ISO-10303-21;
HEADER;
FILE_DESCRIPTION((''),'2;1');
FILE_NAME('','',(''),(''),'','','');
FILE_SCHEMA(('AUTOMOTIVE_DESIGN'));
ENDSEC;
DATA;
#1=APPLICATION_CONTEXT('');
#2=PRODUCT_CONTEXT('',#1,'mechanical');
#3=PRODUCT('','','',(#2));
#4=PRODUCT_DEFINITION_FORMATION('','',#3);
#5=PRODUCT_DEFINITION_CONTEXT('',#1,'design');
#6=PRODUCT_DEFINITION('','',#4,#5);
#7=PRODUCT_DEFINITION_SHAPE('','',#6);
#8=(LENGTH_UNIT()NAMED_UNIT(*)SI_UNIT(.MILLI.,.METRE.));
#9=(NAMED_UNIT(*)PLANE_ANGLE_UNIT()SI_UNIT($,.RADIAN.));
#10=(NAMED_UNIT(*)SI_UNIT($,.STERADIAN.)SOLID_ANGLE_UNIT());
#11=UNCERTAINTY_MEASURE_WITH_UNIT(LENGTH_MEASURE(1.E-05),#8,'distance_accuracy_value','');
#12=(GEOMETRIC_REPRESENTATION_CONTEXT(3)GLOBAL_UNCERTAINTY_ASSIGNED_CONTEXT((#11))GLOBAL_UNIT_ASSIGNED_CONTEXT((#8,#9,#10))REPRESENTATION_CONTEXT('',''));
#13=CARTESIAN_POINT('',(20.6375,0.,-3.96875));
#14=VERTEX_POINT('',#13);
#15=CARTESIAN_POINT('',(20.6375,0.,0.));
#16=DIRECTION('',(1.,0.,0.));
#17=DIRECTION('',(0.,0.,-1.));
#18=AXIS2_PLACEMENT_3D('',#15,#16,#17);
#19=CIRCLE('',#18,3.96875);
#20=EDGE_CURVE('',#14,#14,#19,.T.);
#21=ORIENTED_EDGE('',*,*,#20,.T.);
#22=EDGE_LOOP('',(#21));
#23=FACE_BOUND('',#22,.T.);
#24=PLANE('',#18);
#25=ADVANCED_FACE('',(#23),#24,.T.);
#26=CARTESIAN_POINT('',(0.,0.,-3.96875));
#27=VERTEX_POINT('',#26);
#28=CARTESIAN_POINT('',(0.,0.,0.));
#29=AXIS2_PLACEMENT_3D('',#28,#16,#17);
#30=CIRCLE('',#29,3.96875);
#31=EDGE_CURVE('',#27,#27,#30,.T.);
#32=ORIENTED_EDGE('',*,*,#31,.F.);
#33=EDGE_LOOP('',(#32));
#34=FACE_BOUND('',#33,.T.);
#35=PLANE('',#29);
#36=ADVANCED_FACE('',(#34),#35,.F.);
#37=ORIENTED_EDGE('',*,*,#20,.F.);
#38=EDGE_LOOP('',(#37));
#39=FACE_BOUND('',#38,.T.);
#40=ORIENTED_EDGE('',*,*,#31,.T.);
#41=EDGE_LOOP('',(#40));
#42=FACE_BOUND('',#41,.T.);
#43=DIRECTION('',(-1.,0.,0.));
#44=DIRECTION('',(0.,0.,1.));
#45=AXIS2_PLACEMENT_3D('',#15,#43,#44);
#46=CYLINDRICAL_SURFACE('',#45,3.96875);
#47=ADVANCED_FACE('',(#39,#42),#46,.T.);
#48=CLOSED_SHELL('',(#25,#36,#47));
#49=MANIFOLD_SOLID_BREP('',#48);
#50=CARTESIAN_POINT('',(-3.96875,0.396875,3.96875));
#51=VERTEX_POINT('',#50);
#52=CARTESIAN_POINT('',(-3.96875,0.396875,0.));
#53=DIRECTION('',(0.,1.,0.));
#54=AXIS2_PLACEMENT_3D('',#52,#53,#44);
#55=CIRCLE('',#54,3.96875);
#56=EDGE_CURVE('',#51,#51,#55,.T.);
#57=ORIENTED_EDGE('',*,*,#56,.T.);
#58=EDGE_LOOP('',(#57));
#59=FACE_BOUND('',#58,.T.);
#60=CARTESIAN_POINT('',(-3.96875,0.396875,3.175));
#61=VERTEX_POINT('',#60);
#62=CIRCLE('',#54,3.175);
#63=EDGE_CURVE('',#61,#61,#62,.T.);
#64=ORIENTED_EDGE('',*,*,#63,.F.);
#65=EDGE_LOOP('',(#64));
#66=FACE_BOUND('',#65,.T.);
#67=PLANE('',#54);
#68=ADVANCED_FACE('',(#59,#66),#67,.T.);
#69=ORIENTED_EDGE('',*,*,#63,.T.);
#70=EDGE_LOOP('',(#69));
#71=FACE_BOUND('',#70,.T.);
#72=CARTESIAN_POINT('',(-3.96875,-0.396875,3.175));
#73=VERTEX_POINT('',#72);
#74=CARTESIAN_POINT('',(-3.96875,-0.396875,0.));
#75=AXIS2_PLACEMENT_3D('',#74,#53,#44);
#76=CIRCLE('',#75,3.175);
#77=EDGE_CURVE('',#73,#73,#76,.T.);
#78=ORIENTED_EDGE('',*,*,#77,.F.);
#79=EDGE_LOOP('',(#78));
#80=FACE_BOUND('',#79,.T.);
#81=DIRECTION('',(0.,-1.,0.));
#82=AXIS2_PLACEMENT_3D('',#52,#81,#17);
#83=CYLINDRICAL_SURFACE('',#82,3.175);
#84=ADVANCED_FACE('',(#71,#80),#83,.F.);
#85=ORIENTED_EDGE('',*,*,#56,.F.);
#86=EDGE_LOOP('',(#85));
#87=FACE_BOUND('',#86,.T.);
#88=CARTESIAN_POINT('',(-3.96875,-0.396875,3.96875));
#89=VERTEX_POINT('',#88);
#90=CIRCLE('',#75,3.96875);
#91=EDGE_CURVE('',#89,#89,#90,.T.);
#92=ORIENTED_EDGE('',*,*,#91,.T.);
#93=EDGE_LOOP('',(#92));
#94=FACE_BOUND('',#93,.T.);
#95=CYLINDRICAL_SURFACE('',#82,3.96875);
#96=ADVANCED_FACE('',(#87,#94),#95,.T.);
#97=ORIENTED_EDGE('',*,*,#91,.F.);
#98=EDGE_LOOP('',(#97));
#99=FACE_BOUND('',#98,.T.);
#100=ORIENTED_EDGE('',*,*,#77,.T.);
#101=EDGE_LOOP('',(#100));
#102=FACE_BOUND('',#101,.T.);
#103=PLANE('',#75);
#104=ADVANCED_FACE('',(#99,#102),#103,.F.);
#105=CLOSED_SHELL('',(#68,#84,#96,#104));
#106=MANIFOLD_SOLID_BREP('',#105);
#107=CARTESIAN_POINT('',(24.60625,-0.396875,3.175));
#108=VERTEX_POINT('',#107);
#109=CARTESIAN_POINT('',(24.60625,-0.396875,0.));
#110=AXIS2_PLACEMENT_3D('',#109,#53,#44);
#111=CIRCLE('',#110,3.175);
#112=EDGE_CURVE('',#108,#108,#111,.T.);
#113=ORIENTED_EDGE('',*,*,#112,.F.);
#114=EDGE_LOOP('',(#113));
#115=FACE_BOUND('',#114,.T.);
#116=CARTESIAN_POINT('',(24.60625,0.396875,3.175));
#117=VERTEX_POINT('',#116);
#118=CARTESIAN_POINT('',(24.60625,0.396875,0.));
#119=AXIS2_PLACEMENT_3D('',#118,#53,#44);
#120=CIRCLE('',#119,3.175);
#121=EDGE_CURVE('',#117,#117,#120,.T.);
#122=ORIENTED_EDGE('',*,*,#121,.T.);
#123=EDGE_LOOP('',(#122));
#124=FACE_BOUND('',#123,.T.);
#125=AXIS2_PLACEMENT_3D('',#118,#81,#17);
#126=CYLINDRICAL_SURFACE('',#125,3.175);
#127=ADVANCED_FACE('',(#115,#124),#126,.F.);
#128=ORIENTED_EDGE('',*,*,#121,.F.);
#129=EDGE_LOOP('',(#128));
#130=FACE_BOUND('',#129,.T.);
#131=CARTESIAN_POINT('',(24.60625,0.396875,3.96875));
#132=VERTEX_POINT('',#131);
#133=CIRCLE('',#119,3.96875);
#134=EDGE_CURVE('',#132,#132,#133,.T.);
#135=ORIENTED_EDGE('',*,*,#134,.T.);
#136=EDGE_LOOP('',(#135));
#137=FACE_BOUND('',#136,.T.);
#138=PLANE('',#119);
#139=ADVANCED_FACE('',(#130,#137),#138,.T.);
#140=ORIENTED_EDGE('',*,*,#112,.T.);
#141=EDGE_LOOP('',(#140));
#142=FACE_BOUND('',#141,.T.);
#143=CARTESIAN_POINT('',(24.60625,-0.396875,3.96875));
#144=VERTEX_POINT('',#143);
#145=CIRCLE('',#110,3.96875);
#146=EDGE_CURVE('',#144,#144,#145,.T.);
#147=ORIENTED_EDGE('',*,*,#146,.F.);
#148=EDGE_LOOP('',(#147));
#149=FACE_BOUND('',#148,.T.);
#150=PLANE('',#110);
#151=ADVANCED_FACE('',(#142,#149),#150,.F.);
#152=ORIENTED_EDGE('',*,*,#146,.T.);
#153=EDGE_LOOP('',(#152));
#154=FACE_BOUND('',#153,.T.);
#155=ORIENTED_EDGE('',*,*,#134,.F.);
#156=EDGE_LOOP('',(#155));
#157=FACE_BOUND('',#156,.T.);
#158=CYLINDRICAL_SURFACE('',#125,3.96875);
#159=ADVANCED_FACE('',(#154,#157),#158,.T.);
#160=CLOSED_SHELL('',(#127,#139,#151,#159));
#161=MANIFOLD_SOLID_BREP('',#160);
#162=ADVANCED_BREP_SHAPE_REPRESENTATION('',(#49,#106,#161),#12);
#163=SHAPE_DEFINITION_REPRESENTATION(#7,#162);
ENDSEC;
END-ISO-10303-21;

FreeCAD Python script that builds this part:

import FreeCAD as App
import Part
import Sketcher
from FreeCAD import Vector
Q = App.Units.Quantity

doc = App.newDocument("Part")
body = doc.addObject("PartDesign::Body", "Body")

# Sketch on YZ plane
sketch1 = doc.addObject("Sketcher::SketchObject", "Sketch")
body.addObject(sketch1)
sketch1.AttachmentSupport = (doc.YZ_Plane, [""])
sketch1.MapMode = "FlatFace"
sketch1.addGeometry(Part.Circle(Vector(0, 0, 0), Vector(0, 0, 1), 4), False)
sketch1.addConstraint([
    Sketcher.Constraint("Coincident", 0, 3, -1, 1),
    Sketcher.Constraint("Diameter", 0, Q("0.3125 in")),
])
pad1 = doc.addObject("PartDesign::Pad", "Pad")
body.addObject(pad1)
pad1.Profile = sketch1
pad1.Length = Q("0.8125 in")
body2 = doc.addObject("PartDesign::Body", "Body001")

# Sketch on XZ plane
sketch2 = doc.addObject("Sketcher::SketchObject", "Sketch001")
body2.addObject(sketch2)
sketch2.AttachmentSupport = (doc.getObject("XZ_Plane001"), [""])
sketch2.MapMode = "FlatFace"
sketch2.addGeometry([
    Part.Circle(Vector(-4, 0, 0), Vector(0, 0, 1), 4),
    Part.Circle(Vector(-4, 0, 0), Vector(0, 0, 1), 3.2),
], False)
sketch2.addConstraint([
    Sketcher.Constraint("Coincident", 1, 3, 0, 3),
    Sketcher.Constraint("PointOnObject", 0, 3, -1),
    Sketcher.Constraint("Diameter", 1, Q("0.25 in")),
    Sketcher.Constraint("Diameter", 0, Q("0.3125 in")),
    Sketcher.Constraint("DistanceX", 0, 3, -1, 1, Q("0.15625 in")),
])
pad2 = doc.addObject("PartDesign::Pad", "Pad001")
body2.addObject(pad2)
pad2.Profile = sketch2
pad2.Length = Q("0.03125 in")
pad2.Midplane = True
body3 = doc.addObject("PartDesign::Body", "Body002")

# Sketch on XZ plane
sketch3 = doc.addObject("Sketcher::SketchObject", "Sketch002")
body3.addObject(sketch3)
sketch3.AttachmentSupport = (doc.getObject("XZ_Plane002"), [""])
sketch3.MapMode = "FlatFace"
sketch3.addGeometry([
    Part.Circle(Vector(24.6, 0, 0), Vector(0, 0, 1), 4),
    Part.Circle(Vector(24.6, 0, 0), Vector(0, 0, 1), 3.2),
], False)
sketch3.addConstraint([
    Sketcher.Constraint("Coincident", 1, 3, 0, 3),
    Sketcher.Constraint("PointOnObject", 0, 3, -1),
    Sketcher.Constraint("Diameter", 1, Q("0.25 in")),
    Sketcher.Constraint("Diameter", 0, Q("0.3125 in")),
    Sketcher.Constraint("DistanceX", -1, 1, 0, 3, Q("0.96875 in")),
])
pad3 = doc.addObject("PartDesign::Pad", "Pad002")
body3.addObject(pad3)
pad3.Profile = sketch3
pad3.Length = Q("0.03125 in")
pad3.Midplane = True

doc.recompute()
